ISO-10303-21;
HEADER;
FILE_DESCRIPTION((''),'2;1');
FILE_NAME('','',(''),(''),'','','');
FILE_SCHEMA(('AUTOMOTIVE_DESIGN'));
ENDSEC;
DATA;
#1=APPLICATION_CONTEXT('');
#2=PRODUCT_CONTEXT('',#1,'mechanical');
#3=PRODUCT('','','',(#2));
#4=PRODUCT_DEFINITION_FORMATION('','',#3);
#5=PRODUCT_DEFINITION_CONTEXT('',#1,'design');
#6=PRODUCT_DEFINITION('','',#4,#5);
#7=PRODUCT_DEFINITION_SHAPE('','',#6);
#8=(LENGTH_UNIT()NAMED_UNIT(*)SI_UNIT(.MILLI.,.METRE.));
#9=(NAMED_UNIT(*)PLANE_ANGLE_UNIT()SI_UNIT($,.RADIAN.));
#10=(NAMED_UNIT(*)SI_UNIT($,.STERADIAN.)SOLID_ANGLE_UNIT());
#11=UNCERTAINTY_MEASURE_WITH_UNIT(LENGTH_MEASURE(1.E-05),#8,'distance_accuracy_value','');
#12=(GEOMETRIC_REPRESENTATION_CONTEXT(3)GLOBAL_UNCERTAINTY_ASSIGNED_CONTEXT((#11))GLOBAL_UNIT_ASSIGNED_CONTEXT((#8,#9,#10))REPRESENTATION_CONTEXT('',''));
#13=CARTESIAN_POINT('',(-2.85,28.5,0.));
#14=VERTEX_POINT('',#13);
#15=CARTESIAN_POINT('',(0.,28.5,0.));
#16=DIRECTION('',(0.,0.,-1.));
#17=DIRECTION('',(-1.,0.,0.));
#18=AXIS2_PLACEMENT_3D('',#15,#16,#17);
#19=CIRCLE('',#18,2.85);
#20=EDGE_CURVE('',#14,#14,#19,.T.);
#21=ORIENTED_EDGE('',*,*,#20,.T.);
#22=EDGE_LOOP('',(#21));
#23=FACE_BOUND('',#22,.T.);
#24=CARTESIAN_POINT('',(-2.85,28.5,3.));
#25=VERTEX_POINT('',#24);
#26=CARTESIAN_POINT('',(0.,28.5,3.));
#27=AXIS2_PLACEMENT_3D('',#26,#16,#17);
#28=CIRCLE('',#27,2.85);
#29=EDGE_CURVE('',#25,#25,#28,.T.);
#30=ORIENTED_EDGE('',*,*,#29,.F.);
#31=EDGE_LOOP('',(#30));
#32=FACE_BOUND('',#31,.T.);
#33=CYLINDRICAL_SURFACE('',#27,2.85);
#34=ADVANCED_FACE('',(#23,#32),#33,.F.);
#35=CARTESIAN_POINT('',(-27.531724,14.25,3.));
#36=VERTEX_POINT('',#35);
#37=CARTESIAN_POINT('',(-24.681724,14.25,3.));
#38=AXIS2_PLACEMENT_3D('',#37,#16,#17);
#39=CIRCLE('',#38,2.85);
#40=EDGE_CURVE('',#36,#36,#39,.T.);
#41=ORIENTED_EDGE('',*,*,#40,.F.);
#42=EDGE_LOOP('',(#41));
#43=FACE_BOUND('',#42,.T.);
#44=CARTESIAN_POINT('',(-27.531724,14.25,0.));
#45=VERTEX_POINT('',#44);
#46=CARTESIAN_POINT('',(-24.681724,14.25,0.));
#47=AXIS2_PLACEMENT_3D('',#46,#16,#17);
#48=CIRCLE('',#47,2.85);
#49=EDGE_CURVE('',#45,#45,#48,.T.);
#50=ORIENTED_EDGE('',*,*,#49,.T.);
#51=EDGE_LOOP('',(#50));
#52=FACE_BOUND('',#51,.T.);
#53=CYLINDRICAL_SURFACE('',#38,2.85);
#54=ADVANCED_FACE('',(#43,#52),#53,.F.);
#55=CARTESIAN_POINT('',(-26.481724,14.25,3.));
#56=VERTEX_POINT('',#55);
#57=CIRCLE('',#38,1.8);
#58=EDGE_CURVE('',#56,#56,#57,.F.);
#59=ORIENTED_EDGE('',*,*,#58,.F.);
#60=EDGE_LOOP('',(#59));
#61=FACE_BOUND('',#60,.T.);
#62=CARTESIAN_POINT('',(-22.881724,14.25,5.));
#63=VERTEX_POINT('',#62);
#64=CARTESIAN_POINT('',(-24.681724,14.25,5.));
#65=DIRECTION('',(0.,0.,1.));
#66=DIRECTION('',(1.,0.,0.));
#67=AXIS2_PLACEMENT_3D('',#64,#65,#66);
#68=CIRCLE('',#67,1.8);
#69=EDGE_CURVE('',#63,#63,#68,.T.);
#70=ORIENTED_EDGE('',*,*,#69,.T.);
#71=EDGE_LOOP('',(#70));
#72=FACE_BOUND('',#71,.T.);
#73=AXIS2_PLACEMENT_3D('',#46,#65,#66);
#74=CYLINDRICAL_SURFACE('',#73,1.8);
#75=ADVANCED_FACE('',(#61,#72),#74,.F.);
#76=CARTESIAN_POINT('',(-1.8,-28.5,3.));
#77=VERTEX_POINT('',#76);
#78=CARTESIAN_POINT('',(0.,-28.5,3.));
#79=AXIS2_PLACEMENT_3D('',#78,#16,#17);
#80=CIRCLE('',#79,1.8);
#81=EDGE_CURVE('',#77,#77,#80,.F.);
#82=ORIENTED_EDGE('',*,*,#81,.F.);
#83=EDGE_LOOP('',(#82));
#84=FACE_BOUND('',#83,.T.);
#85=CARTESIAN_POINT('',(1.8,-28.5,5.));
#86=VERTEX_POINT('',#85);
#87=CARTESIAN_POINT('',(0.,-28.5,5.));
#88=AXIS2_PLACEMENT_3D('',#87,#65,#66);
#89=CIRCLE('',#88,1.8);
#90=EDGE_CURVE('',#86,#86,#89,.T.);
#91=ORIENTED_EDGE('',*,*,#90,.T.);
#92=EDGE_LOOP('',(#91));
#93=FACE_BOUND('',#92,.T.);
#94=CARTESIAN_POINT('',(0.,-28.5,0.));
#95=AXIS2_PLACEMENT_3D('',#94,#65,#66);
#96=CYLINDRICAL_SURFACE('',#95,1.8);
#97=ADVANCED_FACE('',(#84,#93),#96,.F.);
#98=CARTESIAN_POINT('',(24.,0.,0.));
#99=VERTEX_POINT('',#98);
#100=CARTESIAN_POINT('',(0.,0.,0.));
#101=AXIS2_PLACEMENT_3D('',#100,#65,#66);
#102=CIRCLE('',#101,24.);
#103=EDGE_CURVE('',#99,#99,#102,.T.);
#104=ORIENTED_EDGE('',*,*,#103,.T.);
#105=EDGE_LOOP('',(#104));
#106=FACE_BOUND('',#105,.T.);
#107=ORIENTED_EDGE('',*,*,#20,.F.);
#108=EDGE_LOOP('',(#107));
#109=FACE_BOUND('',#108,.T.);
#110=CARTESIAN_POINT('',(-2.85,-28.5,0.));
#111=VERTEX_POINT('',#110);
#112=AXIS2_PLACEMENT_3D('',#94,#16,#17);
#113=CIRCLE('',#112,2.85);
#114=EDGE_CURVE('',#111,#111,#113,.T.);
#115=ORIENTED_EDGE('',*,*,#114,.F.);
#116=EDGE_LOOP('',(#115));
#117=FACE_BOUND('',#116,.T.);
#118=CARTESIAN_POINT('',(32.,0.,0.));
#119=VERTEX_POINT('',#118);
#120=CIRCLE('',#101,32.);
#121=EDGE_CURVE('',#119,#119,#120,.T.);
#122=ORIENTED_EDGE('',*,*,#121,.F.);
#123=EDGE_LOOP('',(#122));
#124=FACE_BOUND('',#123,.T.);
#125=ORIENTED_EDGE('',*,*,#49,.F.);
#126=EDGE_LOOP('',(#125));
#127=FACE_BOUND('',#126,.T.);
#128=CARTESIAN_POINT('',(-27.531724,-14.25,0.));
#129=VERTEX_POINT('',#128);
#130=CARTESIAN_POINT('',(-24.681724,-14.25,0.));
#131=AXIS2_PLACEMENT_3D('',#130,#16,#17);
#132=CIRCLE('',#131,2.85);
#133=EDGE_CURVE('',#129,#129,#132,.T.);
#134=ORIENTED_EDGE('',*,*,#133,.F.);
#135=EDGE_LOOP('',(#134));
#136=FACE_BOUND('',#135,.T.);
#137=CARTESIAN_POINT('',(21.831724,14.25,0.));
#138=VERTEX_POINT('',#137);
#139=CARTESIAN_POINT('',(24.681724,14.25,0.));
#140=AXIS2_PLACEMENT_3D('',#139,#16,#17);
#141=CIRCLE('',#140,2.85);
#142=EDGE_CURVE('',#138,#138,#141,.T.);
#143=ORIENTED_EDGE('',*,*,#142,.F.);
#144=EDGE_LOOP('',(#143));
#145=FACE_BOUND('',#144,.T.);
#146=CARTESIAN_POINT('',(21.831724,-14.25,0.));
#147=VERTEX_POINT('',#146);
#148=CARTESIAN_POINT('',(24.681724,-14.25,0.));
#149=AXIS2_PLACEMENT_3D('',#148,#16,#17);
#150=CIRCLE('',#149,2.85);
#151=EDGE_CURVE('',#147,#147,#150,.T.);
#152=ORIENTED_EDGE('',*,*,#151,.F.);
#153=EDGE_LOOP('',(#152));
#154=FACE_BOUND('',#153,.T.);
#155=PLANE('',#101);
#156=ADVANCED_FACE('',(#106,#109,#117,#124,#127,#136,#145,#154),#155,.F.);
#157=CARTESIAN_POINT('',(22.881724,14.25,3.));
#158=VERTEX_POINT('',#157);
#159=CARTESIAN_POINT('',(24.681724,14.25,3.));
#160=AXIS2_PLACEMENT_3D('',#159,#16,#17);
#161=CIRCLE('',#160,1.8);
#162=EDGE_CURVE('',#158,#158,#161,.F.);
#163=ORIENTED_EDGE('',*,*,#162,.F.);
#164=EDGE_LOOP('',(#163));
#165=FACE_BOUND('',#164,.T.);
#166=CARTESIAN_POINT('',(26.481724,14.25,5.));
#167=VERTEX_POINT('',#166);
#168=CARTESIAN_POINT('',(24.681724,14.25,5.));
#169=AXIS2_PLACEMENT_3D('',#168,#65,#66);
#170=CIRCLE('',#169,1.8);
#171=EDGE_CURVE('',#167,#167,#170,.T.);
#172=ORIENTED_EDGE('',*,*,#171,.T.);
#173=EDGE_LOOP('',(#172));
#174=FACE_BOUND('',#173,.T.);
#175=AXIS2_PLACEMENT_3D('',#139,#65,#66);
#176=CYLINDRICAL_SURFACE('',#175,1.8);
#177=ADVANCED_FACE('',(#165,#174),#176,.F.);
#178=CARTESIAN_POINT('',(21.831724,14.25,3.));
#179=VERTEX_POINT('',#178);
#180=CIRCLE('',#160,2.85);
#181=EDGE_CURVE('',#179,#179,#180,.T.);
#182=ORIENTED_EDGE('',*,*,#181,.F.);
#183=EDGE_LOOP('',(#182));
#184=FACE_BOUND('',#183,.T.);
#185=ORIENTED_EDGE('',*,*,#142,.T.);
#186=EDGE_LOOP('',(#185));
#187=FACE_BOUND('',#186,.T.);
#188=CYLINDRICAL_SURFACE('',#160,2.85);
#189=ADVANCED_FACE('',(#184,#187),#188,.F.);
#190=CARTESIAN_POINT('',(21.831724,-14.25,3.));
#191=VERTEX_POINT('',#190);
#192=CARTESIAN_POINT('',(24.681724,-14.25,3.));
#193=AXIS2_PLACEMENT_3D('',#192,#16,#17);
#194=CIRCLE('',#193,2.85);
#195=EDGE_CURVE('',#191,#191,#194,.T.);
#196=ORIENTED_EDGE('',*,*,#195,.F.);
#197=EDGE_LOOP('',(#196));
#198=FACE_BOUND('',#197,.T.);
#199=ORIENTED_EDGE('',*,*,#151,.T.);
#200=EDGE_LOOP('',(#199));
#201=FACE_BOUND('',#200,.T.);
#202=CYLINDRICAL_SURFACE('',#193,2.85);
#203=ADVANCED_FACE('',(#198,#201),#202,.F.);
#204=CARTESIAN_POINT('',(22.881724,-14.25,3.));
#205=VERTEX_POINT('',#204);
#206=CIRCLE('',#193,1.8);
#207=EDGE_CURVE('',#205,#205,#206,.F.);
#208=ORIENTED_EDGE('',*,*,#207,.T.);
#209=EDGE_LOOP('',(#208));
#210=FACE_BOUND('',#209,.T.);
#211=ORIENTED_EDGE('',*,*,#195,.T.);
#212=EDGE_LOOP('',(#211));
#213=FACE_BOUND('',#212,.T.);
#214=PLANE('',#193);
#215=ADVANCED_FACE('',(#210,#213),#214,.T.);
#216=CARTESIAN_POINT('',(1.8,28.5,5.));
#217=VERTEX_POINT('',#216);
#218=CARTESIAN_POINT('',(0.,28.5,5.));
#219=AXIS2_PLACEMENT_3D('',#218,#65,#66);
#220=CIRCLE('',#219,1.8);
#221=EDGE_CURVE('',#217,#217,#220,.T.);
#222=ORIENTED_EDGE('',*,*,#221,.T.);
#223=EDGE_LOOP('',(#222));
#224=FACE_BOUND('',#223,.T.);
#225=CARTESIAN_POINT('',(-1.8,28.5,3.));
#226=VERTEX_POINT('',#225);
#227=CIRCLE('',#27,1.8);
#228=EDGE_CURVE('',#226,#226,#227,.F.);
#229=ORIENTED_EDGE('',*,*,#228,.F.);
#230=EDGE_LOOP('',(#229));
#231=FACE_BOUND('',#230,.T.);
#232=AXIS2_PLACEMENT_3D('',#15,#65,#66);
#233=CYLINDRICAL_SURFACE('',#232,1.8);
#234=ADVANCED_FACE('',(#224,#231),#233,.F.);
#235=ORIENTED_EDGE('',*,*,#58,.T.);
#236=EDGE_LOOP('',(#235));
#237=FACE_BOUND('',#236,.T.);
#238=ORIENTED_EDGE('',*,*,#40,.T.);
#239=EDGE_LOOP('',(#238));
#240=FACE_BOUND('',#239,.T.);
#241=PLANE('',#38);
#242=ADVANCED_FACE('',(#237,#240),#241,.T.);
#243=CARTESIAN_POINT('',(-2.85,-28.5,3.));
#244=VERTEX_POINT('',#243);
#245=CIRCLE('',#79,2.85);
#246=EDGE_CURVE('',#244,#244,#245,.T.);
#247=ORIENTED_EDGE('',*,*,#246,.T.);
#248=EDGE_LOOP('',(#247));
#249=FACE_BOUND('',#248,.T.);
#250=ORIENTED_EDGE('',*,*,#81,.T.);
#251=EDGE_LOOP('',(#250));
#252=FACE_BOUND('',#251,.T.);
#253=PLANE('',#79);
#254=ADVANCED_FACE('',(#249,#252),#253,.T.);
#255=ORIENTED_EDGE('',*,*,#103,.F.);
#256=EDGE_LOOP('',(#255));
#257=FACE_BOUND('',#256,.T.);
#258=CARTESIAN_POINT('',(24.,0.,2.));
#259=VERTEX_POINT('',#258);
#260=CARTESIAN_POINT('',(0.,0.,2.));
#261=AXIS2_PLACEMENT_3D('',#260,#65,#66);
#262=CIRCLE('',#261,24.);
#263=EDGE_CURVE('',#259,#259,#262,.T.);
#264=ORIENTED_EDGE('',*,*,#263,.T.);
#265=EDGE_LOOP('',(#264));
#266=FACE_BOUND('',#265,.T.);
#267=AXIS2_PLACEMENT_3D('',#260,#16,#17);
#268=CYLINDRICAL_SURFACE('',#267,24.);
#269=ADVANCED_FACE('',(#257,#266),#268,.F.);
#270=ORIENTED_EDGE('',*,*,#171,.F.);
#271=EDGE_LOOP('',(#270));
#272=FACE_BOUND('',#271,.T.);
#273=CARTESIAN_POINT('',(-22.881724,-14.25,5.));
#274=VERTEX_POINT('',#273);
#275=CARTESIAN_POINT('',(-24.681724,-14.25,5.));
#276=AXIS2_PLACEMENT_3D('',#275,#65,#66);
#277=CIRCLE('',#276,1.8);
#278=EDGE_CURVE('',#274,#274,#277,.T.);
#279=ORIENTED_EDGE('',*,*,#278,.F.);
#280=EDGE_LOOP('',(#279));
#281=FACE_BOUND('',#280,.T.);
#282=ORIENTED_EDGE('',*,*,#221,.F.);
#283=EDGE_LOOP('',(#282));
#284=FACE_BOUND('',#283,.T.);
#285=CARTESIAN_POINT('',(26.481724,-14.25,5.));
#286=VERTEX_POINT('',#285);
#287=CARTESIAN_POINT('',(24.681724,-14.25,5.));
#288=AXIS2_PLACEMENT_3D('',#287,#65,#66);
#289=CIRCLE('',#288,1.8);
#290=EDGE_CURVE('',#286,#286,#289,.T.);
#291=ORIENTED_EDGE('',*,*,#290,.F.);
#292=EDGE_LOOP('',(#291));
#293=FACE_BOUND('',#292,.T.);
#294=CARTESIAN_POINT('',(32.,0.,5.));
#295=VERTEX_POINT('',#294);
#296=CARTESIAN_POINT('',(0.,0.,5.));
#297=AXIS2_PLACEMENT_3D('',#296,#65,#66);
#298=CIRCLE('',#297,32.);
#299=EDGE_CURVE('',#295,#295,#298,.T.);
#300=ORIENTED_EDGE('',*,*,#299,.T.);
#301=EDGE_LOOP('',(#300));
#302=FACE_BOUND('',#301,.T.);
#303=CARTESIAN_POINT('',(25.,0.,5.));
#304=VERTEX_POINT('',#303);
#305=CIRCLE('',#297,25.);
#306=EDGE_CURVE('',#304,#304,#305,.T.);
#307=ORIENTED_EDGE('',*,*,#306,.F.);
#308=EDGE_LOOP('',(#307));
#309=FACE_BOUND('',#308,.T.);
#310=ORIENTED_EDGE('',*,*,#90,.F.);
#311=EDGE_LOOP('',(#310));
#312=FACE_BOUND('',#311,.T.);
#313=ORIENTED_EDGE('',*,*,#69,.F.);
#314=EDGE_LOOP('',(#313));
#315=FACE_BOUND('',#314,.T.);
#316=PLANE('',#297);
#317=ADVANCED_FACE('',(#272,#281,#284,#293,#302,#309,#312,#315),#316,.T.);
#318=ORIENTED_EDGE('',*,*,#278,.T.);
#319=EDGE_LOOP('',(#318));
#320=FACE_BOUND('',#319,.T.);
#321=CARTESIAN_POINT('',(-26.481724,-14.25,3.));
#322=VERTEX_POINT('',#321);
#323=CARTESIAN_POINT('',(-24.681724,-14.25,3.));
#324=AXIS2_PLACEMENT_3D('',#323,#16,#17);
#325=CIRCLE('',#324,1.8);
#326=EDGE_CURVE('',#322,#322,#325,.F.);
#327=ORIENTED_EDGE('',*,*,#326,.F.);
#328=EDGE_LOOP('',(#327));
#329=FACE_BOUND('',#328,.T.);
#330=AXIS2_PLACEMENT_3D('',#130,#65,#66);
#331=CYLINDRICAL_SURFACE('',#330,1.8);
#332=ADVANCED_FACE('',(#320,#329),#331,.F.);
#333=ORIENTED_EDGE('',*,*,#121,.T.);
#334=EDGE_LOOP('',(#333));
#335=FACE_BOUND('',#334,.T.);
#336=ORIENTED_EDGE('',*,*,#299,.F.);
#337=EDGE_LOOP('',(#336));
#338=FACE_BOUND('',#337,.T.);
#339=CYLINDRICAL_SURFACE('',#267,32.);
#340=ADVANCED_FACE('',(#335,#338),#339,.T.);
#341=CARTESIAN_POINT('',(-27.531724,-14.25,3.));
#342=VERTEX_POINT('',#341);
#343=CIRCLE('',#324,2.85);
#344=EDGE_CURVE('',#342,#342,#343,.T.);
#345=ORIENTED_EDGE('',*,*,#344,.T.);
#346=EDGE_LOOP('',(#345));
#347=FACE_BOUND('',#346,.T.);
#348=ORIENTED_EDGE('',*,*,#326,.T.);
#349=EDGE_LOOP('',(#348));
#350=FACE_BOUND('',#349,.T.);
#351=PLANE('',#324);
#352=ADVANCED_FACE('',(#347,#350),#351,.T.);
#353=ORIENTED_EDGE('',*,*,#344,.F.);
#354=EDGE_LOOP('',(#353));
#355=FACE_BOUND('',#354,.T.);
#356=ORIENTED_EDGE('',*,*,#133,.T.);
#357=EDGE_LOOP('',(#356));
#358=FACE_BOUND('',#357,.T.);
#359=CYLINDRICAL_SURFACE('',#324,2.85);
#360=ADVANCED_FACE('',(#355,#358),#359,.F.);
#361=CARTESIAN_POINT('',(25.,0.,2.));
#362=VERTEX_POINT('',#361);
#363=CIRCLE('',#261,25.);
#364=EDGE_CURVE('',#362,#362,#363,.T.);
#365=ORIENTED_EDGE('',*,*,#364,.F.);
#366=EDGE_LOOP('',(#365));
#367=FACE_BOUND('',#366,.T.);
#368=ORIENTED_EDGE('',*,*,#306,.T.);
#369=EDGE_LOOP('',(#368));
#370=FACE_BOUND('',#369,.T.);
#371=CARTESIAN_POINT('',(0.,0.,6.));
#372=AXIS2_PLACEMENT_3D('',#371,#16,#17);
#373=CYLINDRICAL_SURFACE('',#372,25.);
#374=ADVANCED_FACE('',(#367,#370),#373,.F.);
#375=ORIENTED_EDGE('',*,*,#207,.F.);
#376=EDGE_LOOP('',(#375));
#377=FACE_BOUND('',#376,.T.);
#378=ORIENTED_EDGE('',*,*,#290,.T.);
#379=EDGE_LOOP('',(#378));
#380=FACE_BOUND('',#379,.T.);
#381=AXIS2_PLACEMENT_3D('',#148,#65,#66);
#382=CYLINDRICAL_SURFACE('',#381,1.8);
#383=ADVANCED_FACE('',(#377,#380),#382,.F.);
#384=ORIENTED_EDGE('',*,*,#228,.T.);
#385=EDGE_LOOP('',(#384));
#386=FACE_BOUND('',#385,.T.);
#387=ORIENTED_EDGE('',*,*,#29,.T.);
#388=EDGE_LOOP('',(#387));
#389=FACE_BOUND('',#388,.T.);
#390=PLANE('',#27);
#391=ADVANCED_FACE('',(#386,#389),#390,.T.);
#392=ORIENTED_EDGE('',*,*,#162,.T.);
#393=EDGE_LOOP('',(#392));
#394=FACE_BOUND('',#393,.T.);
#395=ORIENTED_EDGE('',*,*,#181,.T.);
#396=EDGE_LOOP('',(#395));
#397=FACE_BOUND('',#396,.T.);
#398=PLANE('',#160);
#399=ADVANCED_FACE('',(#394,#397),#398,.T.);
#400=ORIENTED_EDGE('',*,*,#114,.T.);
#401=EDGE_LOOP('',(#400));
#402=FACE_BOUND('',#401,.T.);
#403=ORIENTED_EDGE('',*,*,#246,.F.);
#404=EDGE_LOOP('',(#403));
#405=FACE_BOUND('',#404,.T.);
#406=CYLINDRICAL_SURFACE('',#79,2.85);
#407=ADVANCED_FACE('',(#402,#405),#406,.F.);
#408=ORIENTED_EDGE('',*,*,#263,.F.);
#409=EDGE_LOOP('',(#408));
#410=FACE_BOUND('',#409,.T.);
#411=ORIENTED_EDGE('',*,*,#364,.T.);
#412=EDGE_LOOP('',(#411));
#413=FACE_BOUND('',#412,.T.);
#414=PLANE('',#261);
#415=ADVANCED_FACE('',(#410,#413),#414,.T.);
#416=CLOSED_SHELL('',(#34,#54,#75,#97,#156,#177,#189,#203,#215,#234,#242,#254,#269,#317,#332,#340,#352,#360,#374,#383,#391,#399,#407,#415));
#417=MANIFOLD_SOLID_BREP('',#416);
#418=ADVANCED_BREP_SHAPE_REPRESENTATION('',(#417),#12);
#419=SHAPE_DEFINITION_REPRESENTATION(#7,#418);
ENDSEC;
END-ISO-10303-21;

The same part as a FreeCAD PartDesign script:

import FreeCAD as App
import Part
import Sketcher

V = App.Vector
Q = App.Units.Quantity

doc = App.newDocument("Part")
params = doc.addObject("Spreadsheet::Sheet", "Params")
for row, (alias, value) in enumerate([
    ("sketch1_diameter", "64 mm"),
    ("sketch1_diameter2", "48 mm"),
    ("pad1_length", "2 mm"),
    ("sketch2_diameter", "64 mm"),
    ("sketch2_diameter2", "50 mm"),
    ("pad2_length", "4 mm"),
    ("sketch3_diameter", "3.6 mm"),
    ("sketch4_diameter", "5.7 mm"),
    ("pocket2_length", "3 mm"),
    ("sketch5_diameter", "64 mm"),
    ("sketch5_diameter2", "50 mm"),
    ("sketch5_diameter3", "3.6 mm"),
    ("pocket3_length", "1 mm"),
], start=1):
    params.set(f"A{row}", alias)
    params.set(f"B{row}", "=" + value)
    params.setAlias(f"B{row}", alias)

body = doc.addObject("PartDesign::Body", "Body")

# Sketch on XY plane
sketch1 = body.newObject("Sketcher::SketchObject", "Sketch")
sketch1.AttachmentSupport = (doc.getObject("XY_Plane"), [""])
sketch1.MapMode = "FlatFace"
sketch1.addGeometry([
    Part.Circle(V(0, 0, 0), V(0, 0, 1), 32),
    Part.Circle(V(0, 0, 0), V(0, 0, 1), 24),
], False)
sketch1.addConstraint([
    Sketcher.Constraint("Coincident", 0, 3, -1, 1),
    Sketcher.Constraint("Coincident", 1, 3, -1, 1),
    Sketcher.Constraint("Diameter", 0, Q("64 mm")),
    Sketcher.Constraint("Diameter", 1, Q("48 mm")),
])
sketch1.setExpression("Constraints[2]", "Params.sketch1_diameter")
sketch1.setExpression("Constraints[3]", "Params.sketch1_diameter2")
pad1 = body.newObject("PartDesign::Pad", "Pad")
pad1.Profile = sketch1
pad1.setExpression("Length", "Params.pad1_length")

# Sketch on XY plane
sketch2 = body.newObject("Sketcher::SketchObject", "Sketch001")
sketch2.AttachmentSupport = (doc.getObject("XY_Plane"), [""])
sketch2.MapMode = "FlatFace"
sketch2.AttachmentOffset = App.Placement(V(0, 0, 2), App.Rotation())
sketch2.addGeometry([
    Part.Circle(V(0, 0, 0), V(0, 0, 1), 32),
    Part.Circle(V(0, 0, 0), V(0, 0, 1), 25),
], False)
sketch2.addConstraint([
    Sketcher.Constraint("Coincident", 0, 3, -1, 1),
    Sketcher.Constraint("Coincident", 1, 3, -1, 1),
    Sketcher.Constraint("Diameter", 0, Q("64 mm")),
    Sketcher.Constraint("Diameter", 1, Q("50 mm")),
])
sketch2.setExpression("Constraints[2]", "Params.sketch2_diameter")
sketch2.setExpression("Constraints[3]", "Params.sketch2_diameter2")
pad2 = body.newObject("PartDesign::Pad", "Pad001")
pad2.Profile = sketch2
pad2.setExpression("Length", "Params.pad2_length")

# Sketch on XY plane
sketch3 = body.newObject("Sketcher::SketchObject", "Sketch002")
sketch3.AttachmentSupport = (doc.getObject("XY_Plane"), [""])
sketch3.MapMode = "FlatFace"
sketch3.AttachmentOffset = App.Placement(V(0, 0, 6), App.Rotation())
sketch3.addGeometry([
    Part.Circle(V(0, 28.5, 0), V(0, 0, 1), 1.8),  # 0
    Part.Circle(V(24.7, 14.2, 0), V(0, 0, 1), 1.8),  # 1
    Part.Circle(V(24.7, -14.2, 0), V(0, 0, 1), 1.8),  # 2
    Part.Circle(V(0, -28.5, 0), V(0, 0, 1), 1.8),  # 3
    Part.Circle(V(-24.7, -14.2, 0), V(0, 0, 1), 1.8),  # 4
    Part.Circle(V(-24.7, 14.2, 0), V(0, 0, 1), 1.8),  # 5
], False)
sketch3.addConstraint([
    Sketcher.Constraint("Equal", 0, 1),
    Sketcher.Constraint("Equal", 1, 2),
    Sketcher.Constraint("Equal", 2, 3),
    Sketcher.Constraint("Equal", 3, 4),
    Sketcher.Constraint("Equal", 4, 5),
    Sketcher.Constraint("Symmetric", 0, 3, 3, 3, -1, 1),
    Sketcher.Constraint("Symmetric", 1, 3, 4, 3, -1, 1),
    Sketcher.Constraint("Symmetric", 2, 3, 5, 3, -1, 1),
    Sketcher.Constraint("Symmetric", 2, 3, 4, 3, -2),
    Sketcher.Constraint("PointOnObject", 0, 3, -2),
    Sketcher.Constraint("Diameter", 0, Q("3.6 mm")),
    Sketcher.Constraint("DistanceY", 3, 3, 0, 3, Q("57 mm")),
    Sketcher.Constraint("DistanceY", 2, 3, 1, 3, Q("28.5 mm")),
    Sketcher.Constraint("DistanceX", 4, 3, 2, 3, Q("49.363448 mm")),
])
sketch3.setExpression("Constraints[10]", "Params.sketch3_diameter")
pocket1 = body.newObject("PartDesign::Pocket", "Pocket")
pocket1.Profile = sketch3
pocket1.Type = "ThroughAll"

# Sketch on XY plane
sketch4 = body.newObject("Sketcher::SketchObject", "Sketch003")
sketch4.AttachmentSupport = (doc.getObject("XY_Plane"), [""])
sketch4.MapMode = "FlatFace"
sketch4.addGeometry([
    Part.Circle(V(24.7, -14.2, 0), V(0, 0, 1), 2.9),  # 0
    Part.Circle(V(24.7, 14.2, 0), V(0, 0, 1), 2.9),  # 1
    Part.Circle(V(0, 28.5, 0), V(0, 0, 1), 2.9),  # 2
    Part.Circle(V(-24.7, 14.2, 0), V(0, 0, 1), 2.9),  # 3
    Part.Circle(V(-24.7, -14.2, 0), V(0, 0, 1), 2.9),  # 4
    Part.Circle(V(0, -28.5, 0), V(0, 0, 1), 2.9),  # 5
], False)
sketch4.addConstraint([
    Sketcher.Constraint("Equal", 0, 1),
    Sketcher.Constraint("Equal", 1, 2),
    Sketcher.Constraint("Equal", 2, 3),
    Sketcher.Constraint("Equal", 3, 4),
    Sketcher.Constraint("Equal", 4, 5),
    Sketcher.Constraint("Symmetric", 0, 3, 3, 3, -1, 1),
    Sketcher.Constraint("Symmetric", 1, 3, 4, 3, -1, 1),
    Sketcher.Constraint("Symmetric", 2, 3, 5, 3, -1, 1),
    Sketcher.Constraint("Symmetric", 1, 3, 3, 3, -2),
    Sketcher.Constraint("PointOnObject", 2, 3, -2),
    Sketcher.Constraint("Diameter", 0, Q("5.7 mm")),
    Sketcher.Constraint("DistanceY", 5, 3, 2, 3, Q("57 mm")),
    Sketcher.Constraint("DistanceY", 0, 3, 1, 3, Q("28.5 mm")),
    Sketcher.Constraint("DistanceX", 3, 3, 1, 3, Q("49.363448 mm")),
])
sketch4.setExpression("Constraints[10]", "Params.sketch4_diameter")
pocket2 = body.newObject("PartDesign::Pocket", "Pocket001")
pocket2.Profile = sketch4
pocket2.setExpression("Length", "Params.pocket2_length")
pocket2.Reversed = True

# Sketch on XY plane
sketch5 = body.newObject("Sketcher::SketchObject", "Sketch004")
sketch5.AttachmentSupport = (doc.getObject("XY_Plane"), [""])
sketch5.MapMode = "FlatFace"
sketch5.AttachmentOffset = App.Placement(V(0, 0, 6), App.Rotation())
sketch5.addGeometry([
    Part.Circle(V(0, 0, 0), V(0, 0, 1), 32),  # 0
    Part.Circle(V(-24.7, -14.2, 0), V(0, 0, 1), 1.8),  # 1
    Part.Circle(V(0, -28.5, 0), V(0, 0, 1), 1.8),  # 2
    Part.Circle(V(0, 0, 0), V(0, 0, 1), 25),  # 3
    Part.Circle(V(24.7, -14.2, 0), V(0, 0, 1), 1.8),  # 4
    Part.Circle(V(-24.7, 14.2, 0), V(0, 0, 1), 1.8),  # 5
    Part.Circle(V(24.7, 14.2, 0), V(0, 0, 1), 1.8),  # 6
    Part.Circle(V(0, 28.5, 0), V(0, 0, 1), 1.8),  # 7
], False)
sketch5.addConstraint([
    Sketcher.Constraint("Coincident", 0, 3, -1, 1),
    Sketcher.Constraint("Coincident", 3, 3, -1, 1),
    Sketcher.Constraint("Equal", 1, 2),
    Sketcher.Constraint("Equal", 2, 4),
    Sketcher.Constraint("Equal", 4, 5),
    Sketcher.Constraint("Equal", 5, 6),
    Sketcher.Constraint("Equal", 6, 7),
    Sketcher.Constraint("Symmetric", 4, 3, 5, 3, -1, 1),
    Sketcher.Constraint("Symmetric", 1, 3, 6, 3, -1, 1),
    Sketcher.Constraint("Symmetric", 2, 3, 7, 3, -1, 1),
    Sketcher.Constraint("Symmetric", 1, 3, 4, 3, -2),
    Sketcher.Constraint("PointOnObject", 2, 3, -2),
    Sketcher.Constraint("Diameter", 0, Q("64 mm")),
    Sketcher.Constraint("Diameter", 3, Q("50 mm")),
    Sketcher.Constraint("Diameter", 1, Q("3.6 mm")),
    Sketcher.Constraint("DistanceY", 2, 3, -1, 1, Q("28.5 mm")),
    Sketcher.Constraint("DistanceY", 1, 3, 5, 3, Q("28.5 mm")),
    Sketcher.Constraint("DistanceX", 1, 3, 4, 3, Q("49.363448 mm")),
])
sketch5.setExpression("Constraints[12]", "Params.sketch5_diameter")
sketch5.setExpression("Constraints[13]", "Params.sketch5_diameter2")
sketch5.setExpression("Constraints[14]", "Params.sketch5_diameter3")
pocket3 = body.newObject("PartDesign::Pocket", "Pocket002")
pocket3.Profile = sketch5
pocket3.setExpression("Length", "Params.pocket3_length")

doc.recompute()
